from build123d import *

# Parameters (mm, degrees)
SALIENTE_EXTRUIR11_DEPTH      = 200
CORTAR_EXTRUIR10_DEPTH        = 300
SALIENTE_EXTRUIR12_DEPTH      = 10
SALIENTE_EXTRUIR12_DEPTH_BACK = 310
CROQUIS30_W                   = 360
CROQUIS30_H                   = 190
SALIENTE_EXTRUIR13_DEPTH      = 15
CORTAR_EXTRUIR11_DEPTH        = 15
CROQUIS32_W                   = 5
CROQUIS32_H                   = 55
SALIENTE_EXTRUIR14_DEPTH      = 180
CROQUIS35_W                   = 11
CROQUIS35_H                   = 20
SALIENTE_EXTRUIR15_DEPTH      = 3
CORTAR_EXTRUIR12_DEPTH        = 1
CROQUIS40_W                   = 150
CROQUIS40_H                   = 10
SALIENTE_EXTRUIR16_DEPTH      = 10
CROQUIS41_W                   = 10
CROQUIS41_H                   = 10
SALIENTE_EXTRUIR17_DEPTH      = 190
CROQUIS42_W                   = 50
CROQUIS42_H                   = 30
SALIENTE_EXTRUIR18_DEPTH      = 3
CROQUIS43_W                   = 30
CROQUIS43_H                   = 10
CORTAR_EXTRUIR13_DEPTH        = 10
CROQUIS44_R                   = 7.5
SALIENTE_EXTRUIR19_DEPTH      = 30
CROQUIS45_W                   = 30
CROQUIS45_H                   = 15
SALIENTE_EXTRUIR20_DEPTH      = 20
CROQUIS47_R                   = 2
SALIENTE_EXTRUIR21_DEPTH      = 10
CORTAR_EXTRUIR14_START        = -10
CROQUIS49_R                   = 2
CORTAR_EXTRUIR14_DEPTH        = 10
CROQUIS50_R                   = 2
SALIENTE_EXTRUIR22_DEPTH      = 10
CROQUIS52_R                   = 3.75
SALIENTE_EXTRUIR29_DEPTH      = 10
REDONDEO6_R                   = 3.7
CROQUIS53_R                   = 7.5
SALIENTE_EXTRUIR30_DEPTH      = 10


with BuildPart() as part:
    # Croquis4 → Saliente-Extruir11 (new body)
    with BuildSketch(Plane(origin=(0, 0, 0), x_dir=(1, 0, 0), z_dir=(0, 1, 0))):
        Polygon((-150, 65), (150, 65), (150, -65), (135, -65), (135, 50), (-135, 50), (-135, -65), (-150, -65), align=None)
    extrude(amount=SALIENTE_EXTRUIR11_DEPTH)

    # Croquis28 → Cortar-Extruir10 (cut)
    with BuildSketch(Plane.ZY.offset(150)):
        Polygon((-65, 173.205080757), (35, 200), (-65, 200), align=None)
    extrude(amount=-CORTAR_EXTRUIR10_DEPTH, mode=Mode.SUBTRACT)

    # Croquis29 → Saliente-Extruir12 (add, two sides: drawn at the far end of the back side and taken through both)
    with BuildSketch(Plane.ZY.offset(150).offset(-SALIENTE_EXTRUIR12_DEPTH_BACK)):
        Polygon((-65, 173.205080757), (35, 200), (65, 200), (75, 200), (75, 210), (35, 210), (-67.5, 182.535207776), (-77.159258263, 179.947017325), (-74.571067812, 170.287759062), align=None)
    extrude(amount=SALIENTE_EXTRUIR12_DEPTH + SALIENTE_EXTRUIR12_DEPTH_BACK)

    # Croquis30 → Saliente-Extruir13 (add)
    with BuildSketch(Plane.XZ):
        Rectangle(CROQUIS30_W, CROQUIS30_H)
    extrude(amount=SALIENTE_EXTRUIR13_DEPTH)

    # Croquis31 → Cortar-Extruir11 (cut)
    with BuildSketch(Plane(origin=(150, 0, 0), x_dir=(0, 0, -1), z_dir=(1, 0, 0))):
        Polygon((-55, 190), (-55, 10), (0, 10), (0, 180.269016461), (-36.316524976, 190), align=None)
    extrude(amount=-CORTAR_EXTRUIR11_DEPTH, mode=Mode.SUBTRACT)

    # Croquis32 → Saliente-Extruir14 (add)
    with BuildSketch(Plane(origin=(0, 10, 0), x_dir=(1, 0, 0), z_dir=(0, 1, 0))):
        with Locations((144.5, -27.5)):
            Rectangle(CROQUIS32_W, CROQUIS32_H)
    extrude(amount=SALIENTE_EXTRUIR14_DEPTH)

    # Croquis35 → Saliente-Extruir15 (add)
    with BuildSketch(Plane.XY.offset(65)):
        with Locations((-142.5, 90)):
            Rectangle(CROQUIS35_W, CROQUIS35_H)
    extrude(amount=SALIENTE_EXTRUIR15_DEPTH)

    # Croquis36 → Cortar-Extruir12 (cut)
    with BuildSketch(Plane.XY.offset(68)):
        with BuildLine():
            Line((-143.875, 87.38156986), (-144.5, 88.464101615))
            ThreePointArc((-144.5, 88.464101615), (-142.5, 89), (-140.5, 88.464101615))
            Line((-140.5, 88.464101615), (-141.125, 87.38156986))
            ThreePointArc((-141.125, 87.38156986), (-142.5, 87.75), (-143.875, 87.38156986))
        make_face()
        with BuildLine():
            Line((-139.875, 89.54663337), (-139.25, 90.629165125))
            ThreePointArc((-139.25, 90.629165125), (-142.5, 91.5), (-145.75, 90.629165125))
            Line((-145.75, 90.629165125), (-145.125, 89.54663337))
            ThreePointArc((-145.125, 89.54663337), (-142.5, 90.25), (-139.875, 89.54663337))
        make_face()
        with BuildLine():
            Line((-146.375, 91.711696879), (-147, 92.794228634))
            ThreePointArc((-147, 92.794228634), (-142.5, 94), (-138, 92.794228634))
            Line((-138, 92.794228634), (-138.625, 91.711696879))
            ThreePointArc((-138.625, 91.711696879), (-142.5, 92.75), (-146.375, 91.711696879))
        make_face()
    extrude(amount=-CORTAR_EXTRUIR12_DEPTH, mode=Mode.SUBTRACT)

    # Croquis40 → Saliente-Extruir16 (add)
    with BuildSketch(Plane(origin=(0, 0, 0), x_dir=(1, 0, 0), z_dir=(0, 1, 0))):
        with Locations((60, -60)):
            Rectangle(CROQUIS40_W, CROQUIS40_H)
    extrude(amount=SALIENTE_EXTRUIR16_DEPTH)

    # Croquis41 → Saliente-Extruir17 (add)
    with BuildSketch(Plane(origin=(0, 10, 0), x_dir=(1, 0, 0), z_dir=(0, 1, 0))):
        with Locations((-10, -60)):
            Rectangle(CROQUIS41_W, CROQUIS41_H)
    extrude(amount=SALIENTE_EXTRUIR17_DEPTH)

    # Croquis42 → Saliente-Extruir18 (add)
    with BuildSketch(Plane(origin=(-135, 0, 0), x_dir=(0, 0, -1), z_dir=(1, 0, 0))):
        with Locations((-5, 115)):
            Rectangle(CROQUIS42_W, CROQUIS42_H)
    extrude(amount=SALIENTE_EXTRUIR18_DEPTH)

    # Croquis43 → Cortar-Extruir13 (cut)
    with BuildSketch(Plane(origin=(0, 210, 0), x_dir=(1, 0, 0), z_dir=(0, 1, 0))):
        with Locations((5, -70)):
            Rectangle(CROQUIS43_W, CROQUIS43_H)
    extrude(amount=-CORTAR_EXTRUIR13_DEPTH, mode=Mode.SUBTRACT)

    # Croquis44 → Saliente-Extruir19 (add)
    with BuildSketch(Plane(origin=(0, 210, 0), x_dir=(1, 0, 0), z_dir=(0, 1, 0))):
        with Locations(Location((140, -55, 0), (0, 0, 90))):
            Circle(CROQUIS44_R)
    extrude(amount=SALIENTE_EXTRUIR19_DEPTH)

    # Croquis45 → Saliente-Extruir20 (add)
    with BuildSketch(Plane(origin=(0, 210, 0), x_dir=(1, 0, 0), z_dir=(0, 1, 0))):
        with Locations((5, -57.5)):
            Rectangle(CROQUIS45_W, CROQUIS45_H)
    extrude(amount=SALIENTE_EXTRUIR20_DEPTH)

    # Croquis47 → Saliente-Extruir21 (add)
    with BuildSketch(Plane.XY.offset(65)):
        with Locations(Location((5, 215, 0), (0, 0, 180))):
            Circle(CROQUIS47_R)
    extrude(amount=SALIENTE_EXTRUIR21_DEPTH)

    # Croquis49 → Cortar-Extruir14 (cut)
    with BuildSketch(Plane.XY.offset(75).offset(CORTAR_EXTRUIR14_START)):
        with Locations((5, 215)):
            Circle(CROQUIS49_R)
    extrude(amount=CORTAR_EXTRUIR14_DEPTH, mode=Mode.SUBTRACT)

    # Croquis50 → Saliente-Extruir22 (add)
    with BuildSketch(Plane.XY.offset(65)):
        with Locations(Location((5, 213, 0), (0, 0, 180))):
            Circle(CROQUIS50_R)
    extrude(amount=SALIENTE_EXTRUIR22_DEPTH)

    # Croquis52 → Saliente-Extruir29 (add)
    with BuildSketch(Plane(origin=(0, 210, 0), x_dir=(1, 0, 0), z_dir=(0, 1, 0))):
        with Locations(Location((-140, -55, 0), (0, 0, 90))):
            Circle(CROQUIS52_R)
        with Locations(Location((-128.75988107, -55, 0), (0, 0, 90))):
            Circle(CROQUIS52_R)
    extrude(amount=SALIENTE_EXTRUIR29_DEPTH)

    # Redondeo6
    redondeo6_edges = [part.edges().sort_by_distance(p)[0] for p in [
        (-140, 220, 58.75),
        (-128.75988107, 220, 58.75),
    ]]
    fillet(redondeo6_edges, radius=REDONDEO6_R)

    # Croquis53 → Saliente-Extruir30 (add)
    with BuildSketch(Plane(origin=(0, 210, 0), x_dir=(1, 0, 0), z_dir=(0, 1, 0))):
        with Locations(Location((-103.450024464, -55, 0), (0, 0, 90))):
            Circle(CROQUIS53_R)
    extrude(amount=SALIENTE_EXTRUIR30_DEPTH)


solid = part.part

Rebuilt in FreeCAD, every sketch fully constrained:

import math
import FreeCAD as App
import Part
import Sketcher

V = App.Vector
Q = App.Units.Quantity


def edges_at(feature, points):
    """Names of the edges that pass closest to the given points."""
    edges = feature.Shape.Edges
    near = lambda p: min(range(len(edges)), key=lambda i: edges[i].distToShape(Part.Vertex(*p))[0])
    return sorted({f"Edge{near(p) + 1}" for p in points})

doc = App.newDocument("Part")
body = doc.addObject("PartDesign::Body", "Body")

# Sketch on XZ plane
sketch1 = body.newObject("Sketcher::SketchObject", "Sketch")
sketch1.AttachmentSupport = (doc.getObject("XZ_Plane"), [""])
sketch1.MapMode = "FlatFace"
sketch1.addGeometry([
    Part.LineSegment(V(150, -65, 0), V(-150, -65, 0)),  # 0
    Part.LineSegment(V(-150, -65, 0), V(-150, 65, 0)),  # 1
    Part.LineSegment(V(-150, 65, 0), V(-135, 65, 0)),  # 2
    Part.LineSegment(V(-135, 65, 0), V(-135, -50, 0)),  # 3
    Part.LineSegment(V(-135, -50, 0), V(135, -50, 0)),  # 4
    Part.LineSegment(V(135, -50, 0), V(135, 65, 0)),  # 5
    Part.LineSegment(V(135, 65, 0), V(150, 65, 0)),  # 6
    Part.LineSegment(V(150, 65, 0), V(150, -65, 0)),  # 7
], False)
sketch1.addConstraint([
    Sketcher.Constraint("Coincident", 0, 2, 1, 1),
    Sketcher.Constraint("Coincident", 1, 2, 2, 1),
    Sketcher.Constraint("Coincident", 2, 2, 3, 1),
    Sketcher.Constraint("Coincident", 3, 2, 4, 1),
    Sketcher.Constraint("Coincident", 4, 2, 5, 1),
    Sketcher.Constraint("Coincident", 5, 2, 6, 1),
    Sketcher.Constraint("Coincident", 6, 2, 7, 1),
    Sketcher.Constraint("Coincident", 7, 2, 0, 1),
    Sketcher.Constraint("Horizontal", 0),
    Sketcher.Constraint("Vertical", 1),
    Sketcher.Constraint("Horizontal", 2),
    Sketcher.Constraint("Vertical", 3),
    Sketcher.Constraint("Horizontal", 4),
    Sketcher.Constraint("Vertical", 5),
    Sketcher.Constraint("Horizontal", 6),
    Sketcher.Constraint("Vertical", 7),
    Sketcher.Constraint("Symmetric", 0, 2, 6, 2, -1, 1),
    Sketcher.Constraint("Symmetric", 2, 2, 5, 2, -2),
    Sketcher.Constraint("DistanceX", 0, 2, 0, 1, Q("300 mm")),
    Sketcher.Constraint("DistanceX", 2, 1, 2, 2, Q("15 mm")),
    Sketcher.Constraint("DistanceY", 1, 1, 1, 2, Q("130 mm")),
    Sketcher.Constraint("DistanceY", 3, 2, 3, 1, Q("115 mm")),
])
pad1 = body.newObject("PartDesign::Pad", "Pad")
pad1.Profile = sketch1
pad1.Length = 200
pad1.Reversed = True

# Sketch on YZ plane
sketch2 = body.newObject("Sketcher::SketchObject", "Sketch001")
sketch2.AttachmentSupport = (doc.getObject("YZ_Plane"), [""])
sketch2.MapMode = "FlatFace"
sketch2.AttachmentOffset = App.Placement(V(0, 0, -150), App.Rotation())
sketch2.addGeometry([
    Part.LineSegment(V(173, -65, 0), V(200, 35, 0)),
    Part.LineSegment(V(200, 35, 0), V(200, -65, 0)),
    Part.LineSegment(V(200, -65, 0), V(173, -65, 0)),
], False)
sketch2.addConstraint([
    Sketcher.Constraint("Coincident", 0, 2, 1, 1),
    Sketcher.Constraint("Coincident", 1, 2, 2, 1),
    Sketcher.Constraint("Coincident", 2, 2, 0, 1),
    Sketcher.Constraint("Vertical", 1),
    Sketcher.Constraint("Horizontal", 2),
    Sketcher.Constraint("DistanceY", 1, 2, 1, 1, Q("100 mm")),
    Sketcher.Constraint("Angle", 0, Q("75 deg")),
    Sketcher.Constraint("DistanceX", -1, 1, 0, 2, Q("200 mm")),
    Sketcher.Constraint("DistanceY", -1, 1, 0, 2, Q("35 mm")),
])
pocket1 = body.newObject("PartDesign::Pocket", "Pocket")
pocket1.Profile = sketch2
pocket1.Length = 300
pocket1.Reversed = True

# Sketch on YZ plane
sketch3 = body.newObject("Sketcher::SketchObject", "Sketch002")
sketch3.AttachmentSupport = (doc.getObject("YZ_Plane"), [""])
sketch3.MapMode = "FlatFace"
sketch3.AttachmentOffset = App.Placement(V(0, 0, -150), App.Rotation())
sketch3.addGeometry([
    Part.LineSegment(V(173, -65, 0), V(200, 35, 0)),  # 0
    Part.LineSegment(V(200, 35, 0), V(200, 75, 0)),  # 1
    Part.LineSegment(V(200, 75, 0), V(210, 75, 0)),  # 2
    Part.LineSegment(V(210, 75, 0), V(210, 35, 0)),  # 3
    Part.LineSegment(V(210, 35, 0), V(183, -68, 0)),  # 4
    Part.LineSegment(V(183, -68, 0), V(180, -77, 0)),  # 5
    Part.LineSegment(V(180, -77, 0), V(170, -75, 0)),  # 6
    Part.LineSegment(V(170, -75, 0), V(173, -65, 0)),  # 7
], False)
sketch3.addConstraint([
    Sketcher.Constraint("Coincident", 0, 2, 1, 1),
    Sketcher.Constraint("Coincident", 1, 2, 2, 1),
    Sketcher.Constraint("Coincident", 2, 2, 3, 1),
    Sketcher.Constraint("Coincident", 3, 2, 4, 1),
    Sketcher.Constraint("Coincident", 4, 2, 5, 1),
    Sketcher.Constraint("Coincident", 5, 2, 6, 1),
    Sketcher.Constraint("Coincident", 6, 2, 7, 1),
    Sketcher.Constraint("Coincident", 7, 2, 0, 1),
    Sketcher.Constraint("Vertical", 1),
    Sketcher.Constraint("Horizontal", 2),
    Sketcher.Constraint("Vertical", 3),
    Sketcher.Constraint("Parallel", 0, 4),
    Sketcher.Constraint("Parallel", 4, 5),
    Sketcher.Constraint("Perpendicular", 5, 6),
    Sketcher.Constraint("Horizontal", 0, 2, 3, 2),
    Sketcher.Constraint("Equal", 5, 6),
    Sketcher.Constraint("DistanceX", 2, 1, 2, 2, Q("10 mm")),
    Sketcher.Constraint("DistanceY", 1, 1, 1, 2, Q("40 mm")),
    Sketcher.Constraint("Angle", 0, Q("75 deg")),
    Sketcher.Constraint("Distance", 5, Q("10 mm")),
    Sketcher.Constraint("DistanceX", -1, 1, 0, 2, Q("200 mm")),
    Sketcher.Constraint("DistanceY", -1, 1, 0, 2, Q("35 mm")),
    Sketcher.Constraint("DistanceY", 7, 2, -1, 1, Q("65 mm")),
    Sketcher.Constraint("DistanceY", 4, 2, -1, 1, Q("67.5 mm")),
])
pad2 = body.newObject("PartDesign::Pad", "Pad001")
pad2.Profile = sketch3
pad2.Type = "TwoLengths"
pad2.Length = 10
pad2.Length2 = 310
pad2.Reversed = True

# Sketch on XZ plane
sketch4 = body.newObject("Sketcher::SketchObject", "Sketch003")
sketch4.AttachmentSupport = (doc.getObject("XZ_Plane"), [""])
sketch4.MapMode = "FlatFace"
sketch4.addGeometry([
    Part.LineSegment(V(-180, 95, 0), V(-180, -95, 0)),
    Part.LineSegment(V(-180, -95, 0), V(180, -95, 0)),
    Part.LineSegment(V(180, -95, 0), V(180, 95, 0)),
    Part.LineSegment(V(180, 95, 0), V(-180, 95, 0)),
], False)
sketch4.addConstraint([
    Sketcher.Constraint("Coincident", 0, 2, 1, 1),
    Sketcher.Constraint("Coincident", 1, 2, 2, 1),
    Sketcher.Constraint("Coincident", 2, 2, 3, 1),
    Sketcher.Constraint("Coincident", 3, 2, 0, 1),
    Sketcher.Constraint("Vertical", 0),
    Sketcher.Constraint("Horizontal", 1),
    Sketcher.Constraint("Vertical", 2),
    Sketcher.Constraint("Horizontal", 3),
    Sketcher.Constraint("Symmetric", 0, 2, 2, 2, -1, 1),
    Sketcher.Constraint("DistanceX", 1, 1, 1, 2, Q("360 mm")),
    Sketcher.Constraint("DistanceY", 0, 2, 0, 1, Q("190 mm")),
])
pad3 = body.newObject("PartDesign::Pad", "Pad002")
pad3.Profile = sketch4
pad3.Length = 15

# Sketch on YZ plane
sketch5 = body.newObject("Sketcher::SketchObject", "Sketch004")
sketch5.AttachmentSupport = (doc.getObject("YZ_Plane"), [""])
sketch5.MapMode = "FlatFace"
sketch5.AttachmentOffset = App.Placement(V(0, 0, 150), App.Rotation())
sketch5.addGeometry([
    Part.LineSegment(V(190, 55, 0), V(10, 55, 0)),  # 0
    Part.LineSegment(V(10, 55, 0), V(10, 0, 0)),  # 1
    Part.LineSegment(V(10, 0, 0), V(180, 0, 0)),  # 2
    Part.LineSegment(V(180, 0, 0), V(190, 36, 0)),  # 3
    Part.LineSegment(V(190, 36, 0), V(190, 55, 0)),  # 4
], False)
sketch5.addConstraint([
    Sketcher.Constraint("Coincident", 0, 2, 1, 1),
    Sketcher.Constraint("Coincident", 1, 2, 2, 1),
    Sketcher.Constraint("Coincident", 2, 2, 3, 1),
    Sketcher.Constraint("Coincident", 3, 2, 4, 1),
    Sketcher.Constraint("Coincident", 4, 2, 0, 1),
    Sketcher.Constraint("Horizontal", 0),
    Sketcher.Constraint("Vertical", 1),
    Sketcher.Constraint("Horizontal", 2),
    Sketcher.Constraint("Vertical", 4),
    Sketcher.Constraint("PointOnObject", 1, 2, -1),
    Sketcher.Constraint("DistanceX", 0, 2, 0, 1, Q("180 mm")),
    Sketcher.Constraint("DistanceY", 1, 2, 1, 1, Q("55 mm")),
    Sketcher.Constraint("Angle", 3, Q("75 deg")),
    Sketcher.Constraint("DistanceX", -1, 1, 0, 2, Q("10 mm")),
    Sketcher.Constraint("DistanceX", 2, 1, 2, 2, Q("170.269016 mm")),
])
pocket2 = body.newObject("PartDesign::Pocket", "Pocket001")
pocket2.Profile = sketch5
pocket2.Length = 15

# Sketch on XZ plane
sketch6 = body.newObject("Sketcher::SketchObject", "Sketch005")
sketch6.AttachmentSupport = (doc.getObject("XZ_Plane"), [""])
sketch6.MapMode = "FlatFace"
sketch6.AttachmentOffset = App.Placement(V(0, 0, -10), App.Rotation())
sketch6.addGeometry([
    Part.LineSegment(V(142, 0, 0), V(142, 55, 0)),
    Part.LineSegment(V(142, 55, 0), V(147, 55, 0)),
    Part.LineSegment(V(147, 55, 0), V(147, 0, 0)),
    Part.LineSegment(V(147, 0, 0), V(142, 0, 0)),
], False)
sketch6.addConstraint([
    Sketcher.Constraint("Coincident", 0, 2, 1, 1),
    Sketcher.Constraint("Coincident", 1, 2, 2, 1),
    Sketcher.Constraint("Coincident", 2, 2, 3, 1),
    Sketcher.Constraint("Coincident", 3, 2, 0, 1),
    Sketcher.Constraint("Vertical", 0),
    Sketcher.Constraint("Horizontal", 1),
    Sketcher.Constraint("Vertical", 2),
    Sketcher.Constraint("Horizontal", 3),
    Sketcher.Constraint("PointOnObject", 2, 2, -1),
    Sketcher.Constraint("DistanceX", 1, 1, 1, 2, Q("5 mm")),
    Sketcher.Constraint("DistanceY", 0, 1, 0, 2, Q("55 mm")),
    Sketcher.Constraint("DistanceX", -1, 1, 0, 2, Q("142 mm")),
])
pad4 = body.newObject("PartDesign::Pad", "Pad003")
pad4.Profile = sketch6
pad4.Length = 180
pad4.Reversed = True

# Sketch on XY plane
sketch7 = body.newObject("Sketcher::SketchObject", "Sketch006")
sketch7.AttachmentSupport = (doc.getObject("XY_Plane"), [""])
sketch7.MapMode = "FlatFace"
sketch7.AttachmentOffset = App.Placement(V(0, 0, 65), App.Rotation())
sketch7.addGeometry([
    Part.LineSegment(V(-148, 100, 0), V(-148, 80, 0)),
    Part.LineSegment(V(-148, 80, 0), V(-137, 80, 0)),
    Part.LineSegment(V(-137, 80, 0), V(-137, 100, 0)),
    Part.LineSegment(V(-137, 100, 0), V(-148, 100, 0)),
], False)
sketch7.addConstraint([
    Sketcher.Constraint("Coincident", 0, 2, 1, 1),
    Sketcher.Constraint("Coincident", 1, 2, 2, 1),
    Sketcher.Constraint("Coincident", 2, 2, 3, 1),
    Sketcher.Constraint("Coincident", 3, 2, 0, 1),
    Sketcher.Constraint("Vertical", 0),
    Sketcher.Constraint("Horizontal", 1),
    Sketcher.Constraint("Vertical", 2),
    Sketcher.Constraint("Horizontal", 3),
    Sketcher.Constraint("DistanceX", 1, 1, 1, 2, Q("11 mm")),
    Sketcher.Constraint("DistanceY", 0, 2, 0, 1, Q("20 mm")),
    Sketcher.Constraint("DistanceX", 0, 2, -1, 1, Q("148 mm")),
    Sketcher.Constraint("DistanceY", -1, 1, 0, 2, Q("80 mm")),
])
pad5 = body.newObject("PartDesign::Pad", "Pad004")
pad5.Profile = sketch7
pad5.Length = 3

# Sketch on XY plane
sketch8 = body.newObject("Sketcher::SketchObject", "Sketch007")
sketch8.AttachmentSupport = (doc.getObject("XY_Plane"), [""])
sketch8.MapMode = "FlatFace"
sketch8.AttachmentOffset = App.Placement(V(0, 0, 68), App.Rotation())
sketch8.addGeometry([
    Part.LineSegment(V(-144.5, 88.5, 0), V(-143.9, 87.4, 0)),  # 0
    Part.ArcOfCircle(Part.Circle(V(-142.5, 85, 0), V(0, 0, 1), 2.7), math.radians(60), math.radians(120)),  # 1
    Part.LineSegment(V(-141.1, 87.4, 0), V(-140.5, 88.5, 0)),  # 2
    Part.ArcOfCircle(Part.Circle(V(-142.5, 85, 0), V(0, 0, 1), 4), math.radians(60), math.radians(120)),  # 3
    Part.LineSegment(V(-139.9, 89.5, 0), V(-139.2, 90.6, 0)),  # 4
    Part.ArcOfCircle(Part.Circle(V(-142.5, 85, 0), V(0, 0, 1), 6.5), math.radians(60), math.radians(120)),  # 5
    Part.LineSegment(V(-145.8, 90.6, 0), V(-145.1, 89.5, 0)),  # 6
    Part.ArcOfCircle(Part.Circle(V(-142.5, 85, 0), V(0, 0, 1), 5.3), math.radians(60), math.radians(120)),  # 7
    Part.LineSegment(V(-147, 92.8, 0), V(-146.4, 91.7, 0)),  # 8
    Part.ArcOfCircle(Part.Circle(V(-142.5, 85, 0), V(0, 0, 1), 7.7), math.radians(60), math.radians(120)),  # 9
    Part.LineSegment(V(-138.6, 91.7, 0), V(-138, 92.8, 0)),  # 10
    Part.ArcOfCircle(Part.Circle(V(-142.5, 85, 0), V(0, 0, 1), 9), math.radians(60), math.radians(120)),  # 11
], False)
sketch8.addConstraint([
    Sketcher.Constraint("Coincident", 0, 2, 1, 2),
    Sketcher.Constraint("Coincident", 1, 1, 2, 1),
    Sketcher.Constraint("Coincident", 2, 2, 3, 1),
    Sketcher.Constraint("Coincident", 3, 2, 0, 1),
    Sketcher.Constraint("Coincident", 4, 2, 5, 1),
    Sketcher.Constraint("Coincident", 5, 2, 6, 1),
    Sketcher.Constraint("Coincident", 6, 2, 7, 2),
    Sketcher.Constraint("Coincident", 7, 1, 4, 1),
    Sketcher.Constraint("Coincident", 8, 2, 9, 2),
    Sketcher.Constraint("Coincident", 9, 1, 10, 1),
    Sketcher.Constraint("Coincident", 10, 2, 11, 1),
    Sketcher.Constraint("Coincident", 11, 2, 8, 1),
    Sketcher.Constraint("Coincident", 3, 3, 1, 3),
    Sketcher.Constraint("Coincident", 5, 3, 1, 3),
    Sketcher.Constraint("Coincident", 7, 3, 1, 3),
    Sketcher.Constraint("Coincident", 9, 3, 1, 3),
    Sketcher.Constraint("Coincident", 11, 3, 1, 3),
    Sketcher.Constraint("Parallel", 2, 4),
    Sketcher.Constraint("Parallel", 0, 6),
    Sketcher.Constraint("Parallel", 6, 8),
    Sketcher.Constraint("Parallel", 4, 10),
    Sketcher.Constraint("Horizontal", 0, 2, 1, 1),
    Sketcher.Constraint("Horizontal", 2, 2, 3, 2),
    Sketcher.Constraint("Horizontal", 4, 2, 5, 2),
    Sketcher.Constraint("Horizontal", 8, 2, 9, 1),
    Sketcher.Constraint("Equal", 2, 4),
    Sketcher.Constraint("Equal", 6, 8),
    Sketcher.Constraint("Radius", 3, Q("4 mm")),
    Sketcher.Constraint("Radius", 11, Q("9 mm")),
    Sketcher.Constraint("Radius", 5, Q("6.5 mm")),
    Sketcher.Constraint("Angle", 0, Q("-60 deg")),
    Sketcher.Constraint("Radius", 1, Q("2.75 mm")),
    Sketcher.Constraint("DistanceY", -1, 1, 1, 3, Q("85 mm")),
    Sketcher.Constraint("DistanceX", 10, 2, -1, 1, Q("138 mm")),
    Sketcher.Constraint("DistanceX", 11, 2, -1, 1, Q("147 mm")),
    Sketcher.Constraint("DistanceX", 1, 3, 2, 2, Q("2 mm")),
    Sketcher.Constraint("DistanceX", 6, 2, 1, 1, Q("4 mm")),
])
pocket3 = body.newObject("PartDesign::Pocket", "Pocket002")
pocket3.Profile = sketch8
pocket3.Length = 1

# Sketch on XZ plane
sketch9 = body.newObject("Sketcher::SketchObject", "Sketch008")
sketch9.AttachmentSupport = (doc.getObject("XZ_Plane"), [""])
sketch9.MapMode = "FlatFace"
sketch9.addGeometry([
    Part.LineSegment(V(-15, 55, 0), V(-15, 65, 0)),
    Part.LineSegment(V(-15, 65, 0), V(135, 65, 0)),
    Part.LineSegment(V(135, 65, 0), V(135, 55, 0)),
    Part.LineSegment(V(135, 55, 0), V(-15, 55, 0)),
], False)
sketch9.addConstraint([
    Sketcher.Constraint("Coincident", 0, 2, 1, 1),
    Sketcher.Constraint("Coincident", 1, 2, 2, 1),
    Sketcher.Constraint("Coincident", 2, 2, 3, 1),
    Sketcher.Constraint("Coincident", 3, 2, 0, 1),
    Sketcher.Constraint("Vertical", 0),
    Sketcher.Constraint("Horizontal", 1),
    Sketcher.Constraint("Vertical", 2),
    Sketcher.Constraint("Horizontal", 3),
    Sketcher.Constraint("DistanceX", 1, 1, 1, 2, Q("150 mm")),
    Sketcher.Constraint("DistanceY", 0, 1, 0, 2, Q("10 mm")),
    Sketcher.Constraint("DistanceX", 0, 2, -1, 1, Q("15 mm")),
    Sketcher.Constraint("DistanceY", -1, 1, 0, 2, Q("65 mm")),
])
pad6 = body.newObject("PartDesign::Pad", "Pad005")
pad6.Profile = sketch9
pad6.Length = 10
pad6.Reversed = True

# Sketch on XZ plane
sketch10 = body.newObject("Sketcher::SketchObject", "Sketch009")
sketch10.AttachmentSupport = (doc.getObject("XZ_Plane"), [""])
sketch10.MapMode = "FlatFace"
sketch10.AttachmentOffset = App.Placement(V(0, 0, -10), App.Rotation())
sketch10.addGeometry([
    Part.LineSegment(V(-15, 55, 0), V(-15, 65, 0)),
    Part.LineSegment(V(-15, 65, 0), V(-5, 65, 0)),
    Part.LineSegment(V(-5, 65, 0), V(-5, 55, 0)),
    Part.LineSegment(V(-5, 55, 0), V(-15, 55, 0)),
], False)
sketch10.addConstraint([
    Sketcher.Constraint("Coincident", 0, 2, 1, 1),
    Sketcher.Constraint("Coincident", 1, 2, 2, 1),
    Sketcher.Constraint("Coincident", 2, 2, 3, 1),
    Sketcher.Constraint("Coincident", 3, 2, 0, 1),
    Sketcher.Constraint("Vertical", 0),
    Sketcher.Constraint("Horizontal", 1),
    Sketcher.Constraint("Vertical", 2),
    Sketcher.Constraint("Horizontal", 3),
    Sketcher.Constraint("Equal", 3, 0),
    Sketcher.Constraint("DistanceX", 1, 1, 1, 2, Q("10 mm")),
    Sketcher.Constraint("DistanceX", 0, 2, -1, 1, Q("15 mm")),
    Sketcher.Constraint("DistanceY", -1, 1, 0, 2, Q("65 mm")),
])
pad7 = body.newObject("PartDesign::Pad", "Pad006")
pad7.Profile = sketch10
pad7.Length = 190
pad7.Reversed = True

# Sketch on YZ plane
sketch11 = body.newObject("Sketcher::SketchObject", "Sketch010")
sketch11.AttachmentSupport = (doc.getObject("YZ_Plane"), [""])
sketch11.MapMode = "FlatFace"
sketch11.AttachmentOffset = App.Placement(V(0, 0, -135), App.Rotation())
sketch11.addGeometry([
    Part.LineSegment(V(130, 30, 0), V(100, 30, 0)),
    Part.LineSegment(V(100, 30, 0), V(100, -20, 0)),
    Part.LineSegment(V(100, -20, 0), V(130, -20, 0)),
    Part.LineSegment(V(130, -20, 0), V(130, 30, 0)),
], False)
sketch11.addConstraint([
    Sketcher.Constraint("Coincident", 0, 2, 1, 1),
    Sketcher.Constraint("Coincident", 1, 2, 2, 1),
    Sketcher.Constraint("Coincident", 2, 2, 3, 1),
    Sketcher.Constraint("Coincident", 3, 2, 0, 1),
    Sketcher.Constraint("Horizontal", 0),
    Sketcher.Constraint("Vertical", 1),
    Sketcher.Constraint("Horizontal", 2),
    Sketcher.Constraint("Vertical", 3),
    Sketcher.Constraint("DistanceX", 0, 2, 0, 1, Q("30 mm")),
    Sketcher.Constraint("DistanceY", 1, 2, 1, 1, Q("50 mm")),
    Sketcher.Constraint("DistanceX", -1, 1, 0, 2, Q("100 mm")),
    Sketcher.Constraint("DistanceY", -1, 1, 0, 2, Q("30 mm")),
])
pad8 = body.newObject("PartDesign::Pad", "Pad007")
pad8.Profile = sketch11
pad8.Length = 3

# Sketch on XZ plane
sketch12 = body.newObject("Sketcher::SketchObject", "Sketch011")
sketch12.AttachmentSupport = (doc.getObject("XZ_Plane"), [""])
sketch12.MapMode = "FlatFace"
sketch12.AttachmentOffset = App.Placement(V(0, 0, -210), App.Rotation())
sketch12.addGeometry([
    Part.LineSegment(V(-10, 65, 0), V(-10, 75, 0)),
    Part.LineSegment(V(-10, 75, 0), V(20, 75, 0)),
    Part.LineSegment(V(20, 75, 0), V(20, 65, 0)),
    Part.LineSegment(V(20, 65, 0), V(-10, 65, 0)),
], False)
sketch12.addConstraint([
    Sketcher.Constraint("Coincident", 0, 2, 1, 1),
    Sketcher.Constraint("Coincident", 1, 2, 2, 1),
    Sketcher.Constraint("Coincident", 2, 2, 3, 1),
    Sketcher.Constraint("Coincident", 3, 2, 0, 1),
    Sketcher.Constraint("Vertical", 0),
    Sketcher.Constraint("Horizontal", 1),
    Sketcher.Constraint("Vertical", 2),
    Sketcher.Constraint("Horizontal", 3),
    Sketcher.Constraint("DistanceX", 1, 1, 1, 2, Q("30 mm")),
    Sketcher.Constraint("DistanceY", 0, 1, 0, 2, Q("10 mm")),
    Sketcher.Constraint("DistanceX", 0, 2, -1, 1, Q("10 mm")),
    Sketcher.Constraint("DistanceY", -1, 1, 0, 2, Q("75 mm")),
])
pocket4 = body.newObject("PartDesign::Pocket", "Pocket003")
pocket4.Profile = sketch12
pocket4.Length = 10
pocket4.Reversed = True

# Sketch on XZ plane
sketch13 = body.newObject("Sketcher::SketchObject", "Sketch012")
sketch13.AttachmentSupport = (doc.getObject("XZ_Plane"), [""])
sketch13.MapMode = "FlatFace"
sketch13.AttachmentOffset = App.Placement(V(0, 0, -210), App.Rotation())
sketch13.addGeometry(Part.Circle(V(140, 55, 0), V(0, 0, 1), 8), False)
sketch13.addConstraint([
    Sketcher.Constraint("Diameter", 0, Q("15 mm")),
    Sketcher.Constraint("DistanceX", -1, 1, 0, 3, Q("140 mm")),
    Sketcher.Constraint("DistanceY", -1, 1, 0, 3, Q("55 mm")),
])
pad9 = body.newObject("PartDesign::Pad", "Pad008")
pad9.Profile = sketch13
pad9.Length = 30
pad9.Reversed = True

# Sketch on XZ plane
sketch14 = body.newObject("Sketcher::SketchObject", "Sketch013")
sketch14.AttachmentSupport = (doc.getObject("XZ_Plane"), [""])
sketch14.MapMode = "FlatFace"
sketch14.AttachmentOffset = App.Placement(V(0, 0, -210), App.Rotation())
sketch14.addGeometry([
    Part.LineSegment(V(-10, 50, 0), V(-10, 65, 0)),
    Part.LineSegment(V(-10, 65, 0), V(20, 65, 0)),
    Part.LineSegment(V(20, 65, 0), V(20, 50, 0)),
    Part.LineSegment(V(20, 50, 0), V(-10, 50, 0)),
], False)
sketch14.addConstraint([
    Sketcher.Constraint("Coincident", 0, 2, 1, 1),
    Sketcher.Constraint("Coincident", 1, 2, 2, 1),
    Sketcher.Constraint("Coincident", 2, 2, 3, 1),
    Sketcher.Constraint("Coincident", 3, 2, 0, 1),
    Sketcher.Constraint("Vertical", 0),
    Sketcher.Constraint("Horizontal", 1),
    Sketcher.Constraint("Vertical", 2),
    Sketcher.Constraint("Horizontal", 3),
    Sketcher.Constraint("DistanceX", 1, 1, 1, 2, Q("30 mm")),
    Sketcher.Constraint("DistanceY", 0, 1, 0, 2, Q("15 mm")),
    Sketcher.Constraint("DistanceX", 0, 2, -1, 1, Q("10 mm")),
    Sketcher.Constraint("DistanceY", -1, 1, 0, 2, Q("65 mm")),
])
pad10 = body.newObject("PartDesign::Pad", "Pad009")
pad10.Profile = sketch14
pad10.Length = 20
pad10.Reversed = True

# Sketch on XY plane
sketch15 = body.newObject("Sketcher::SketchObject", "Sketch014")
sketch15.AttachmentSupport = (doc.getObject("XY_Plane"), [""])
sketch15.MapMode = "FlatFace"
sketch15.AttachmentOffset = App.Placement(V(0, 0, 65), App.Rotation())
sketch15.addGeometry(Part.Circle(V(5, 215, 0), V(0, 0, 1), 2), False)
sketch15.addConstraint([
    Sketcher.Constraint("Diameter", 0, Q("4 mm")),
    Sketcher.Constraint("DistanceX", -1, 1, 0, 3, Q("5 mm")),
    Sketcher.Constraint("DistanceY", -1, 1, 0, 3, Q("215 mm")),
])
pad11 = body.newObject("PartDesign::Pad", "Pad010")
pad11.Profile = sketch15
pad11.Length = 10

# Sketch on XY plane
sketch16 = body.newObject("Sketcher::SketchObject", "Sketch015")
sketch16.AttachmentSupport = (doc.getObject("XY_Plane"), [""])
sketch16.MapMode = "FlatFace"
sketch16.AttachmentOffset = App.Placement(V(0, 0, 65), App.Rotation())
sketch16.addGeometry(Part.Circle(V(5, 215, 0), V(0, 0, 1), 2), False)
sketch16.addConstraint([
    Sketcher.Constraint("Diameter", 0, Q("4 mm")),
    Sketcher.Constraint("DistanceX", -1, 1, 0, 3, Q("5 mm")),
    Sketcher.Constraint("DistanceY", -1, 1, 0, 3, Q("215 mm")),
])
pocket5 = body.newObject("PartDesign::Pocket", "Pocket004")
pocket5.Profile = sketch16
pocket5.Length = 10
pocket5.Reversed = True

# Sketch on XY plane
sketch17 = body.newObject("Sketcher::SketchObject", "Sketch016")
sketch17.AttachmentSupport = (doc.getObject("XY_Plane"), [""])
sketch17.MapMode = "FlatFace"
sketch17.AttachmentOffset = App.Placement(V(0, 0, 65), App.Rotation())
sketch17.addGeometry(Part.Circle(V(5, 213, 0), V(0, 0, 1), 2), False)
sketch17.addConstraint([
    Sketcher.Constraint("Diameter", 0, Q("4 mm")),
    Sketcher.Constraint("DistanceX", -1, 1, 0, 3, Q("5 mm")),
    Sketcher.Constraint("DistanceY", -1, 1, 0, 3, Q("213 mm")),
])
pad12 = body.newObject("PartDesign::Pad", "Pad011")
pad12.Profile = sketch17
pad12.Length = 10

# Sketch on XZ plane
sketch18 = body.newObject("Sketcher::SketchObject", "Sketch017")
sketch18.AttachmentSupport = (doc.getObject("XZ_Plane"), [""])
sketch18.MapMode = "FlatFace"
sketch18.AttachmentOffset = App.Placement(V(0, 0, -210), App.Rotation())
sketch18.addGeometry([
    Part.Circle(V(-140, 55, 0), V(0, 0, 1), 3.8),
    Part.Circle(V(-128.8, 55, 0), V(0, 0, 1), 3.8),
], False)
sketch18.addConstraint([
    Sketcher.Constraint("Equal", 0, 1),
    Sketcher.Constraint("Horizontal", 0, 3, 1, 3),
    Sketcher.Constraint("Diameter", 0, Q("7.5 mm")),
    Sketcher.Constraint("DistanceX", 0, 3, -1, 1, Q("140 mm")),
    Sketcher.Constraint("DistanceY", -1, 1, 0, 3, Q("55 mm")),
    Sketcher.Constraint("DistanceX", 1, 3, -1, 1, Q("128.759881 mm")),
])
pad13 = body.newObject("PartDesign::Pad", "Pad012")
pad13.Profile = sketch18
pad13.Length = 10
pad13.Reversed = True
doc.recompute()

fillet = body.newObject("PartDesign::Fillet", "Fillet")
fillet.Base = (pad13, edges_at(pad13, [(-140, 220, 58.75), (-128.76, 220, 58.75)]))
fillet.Radius = 3.7

# Sketch on XZ plane
sketch19 = body.newObject("Sketcher::SketchObject", "Sketch018")
sketch19.AttachmentSupport = (doc.getObject("XZ_Plane"), [""])
sketch19.MapMode = "FlatFace"
sketch19.AttachmentOffset = App.Placement(V(0, 0, -210), App.Rotation())
sketch19.addGeometry(Part.Circle(V(-103, 55, 0), V(0, 0, 1), 8), False)
sketch19.addConstraint([
    Sketcher.Constraint("Diameter", 0, Q("15 mm")),
    Sketcher.Constraint("DistanceY", -1, 1, 0, 3, Q("55 mm")),
    Sketcher.Constraint("DistanceX", 0, 3, -1, 1, Q("103.450024 mm")),
])
pad14 = body.newObject("PartDesign::Pad", "Pad013")
pad14.Profile = sketch19
pad14.Length = 10
pad14.Reversed = True

doc.recompute()
